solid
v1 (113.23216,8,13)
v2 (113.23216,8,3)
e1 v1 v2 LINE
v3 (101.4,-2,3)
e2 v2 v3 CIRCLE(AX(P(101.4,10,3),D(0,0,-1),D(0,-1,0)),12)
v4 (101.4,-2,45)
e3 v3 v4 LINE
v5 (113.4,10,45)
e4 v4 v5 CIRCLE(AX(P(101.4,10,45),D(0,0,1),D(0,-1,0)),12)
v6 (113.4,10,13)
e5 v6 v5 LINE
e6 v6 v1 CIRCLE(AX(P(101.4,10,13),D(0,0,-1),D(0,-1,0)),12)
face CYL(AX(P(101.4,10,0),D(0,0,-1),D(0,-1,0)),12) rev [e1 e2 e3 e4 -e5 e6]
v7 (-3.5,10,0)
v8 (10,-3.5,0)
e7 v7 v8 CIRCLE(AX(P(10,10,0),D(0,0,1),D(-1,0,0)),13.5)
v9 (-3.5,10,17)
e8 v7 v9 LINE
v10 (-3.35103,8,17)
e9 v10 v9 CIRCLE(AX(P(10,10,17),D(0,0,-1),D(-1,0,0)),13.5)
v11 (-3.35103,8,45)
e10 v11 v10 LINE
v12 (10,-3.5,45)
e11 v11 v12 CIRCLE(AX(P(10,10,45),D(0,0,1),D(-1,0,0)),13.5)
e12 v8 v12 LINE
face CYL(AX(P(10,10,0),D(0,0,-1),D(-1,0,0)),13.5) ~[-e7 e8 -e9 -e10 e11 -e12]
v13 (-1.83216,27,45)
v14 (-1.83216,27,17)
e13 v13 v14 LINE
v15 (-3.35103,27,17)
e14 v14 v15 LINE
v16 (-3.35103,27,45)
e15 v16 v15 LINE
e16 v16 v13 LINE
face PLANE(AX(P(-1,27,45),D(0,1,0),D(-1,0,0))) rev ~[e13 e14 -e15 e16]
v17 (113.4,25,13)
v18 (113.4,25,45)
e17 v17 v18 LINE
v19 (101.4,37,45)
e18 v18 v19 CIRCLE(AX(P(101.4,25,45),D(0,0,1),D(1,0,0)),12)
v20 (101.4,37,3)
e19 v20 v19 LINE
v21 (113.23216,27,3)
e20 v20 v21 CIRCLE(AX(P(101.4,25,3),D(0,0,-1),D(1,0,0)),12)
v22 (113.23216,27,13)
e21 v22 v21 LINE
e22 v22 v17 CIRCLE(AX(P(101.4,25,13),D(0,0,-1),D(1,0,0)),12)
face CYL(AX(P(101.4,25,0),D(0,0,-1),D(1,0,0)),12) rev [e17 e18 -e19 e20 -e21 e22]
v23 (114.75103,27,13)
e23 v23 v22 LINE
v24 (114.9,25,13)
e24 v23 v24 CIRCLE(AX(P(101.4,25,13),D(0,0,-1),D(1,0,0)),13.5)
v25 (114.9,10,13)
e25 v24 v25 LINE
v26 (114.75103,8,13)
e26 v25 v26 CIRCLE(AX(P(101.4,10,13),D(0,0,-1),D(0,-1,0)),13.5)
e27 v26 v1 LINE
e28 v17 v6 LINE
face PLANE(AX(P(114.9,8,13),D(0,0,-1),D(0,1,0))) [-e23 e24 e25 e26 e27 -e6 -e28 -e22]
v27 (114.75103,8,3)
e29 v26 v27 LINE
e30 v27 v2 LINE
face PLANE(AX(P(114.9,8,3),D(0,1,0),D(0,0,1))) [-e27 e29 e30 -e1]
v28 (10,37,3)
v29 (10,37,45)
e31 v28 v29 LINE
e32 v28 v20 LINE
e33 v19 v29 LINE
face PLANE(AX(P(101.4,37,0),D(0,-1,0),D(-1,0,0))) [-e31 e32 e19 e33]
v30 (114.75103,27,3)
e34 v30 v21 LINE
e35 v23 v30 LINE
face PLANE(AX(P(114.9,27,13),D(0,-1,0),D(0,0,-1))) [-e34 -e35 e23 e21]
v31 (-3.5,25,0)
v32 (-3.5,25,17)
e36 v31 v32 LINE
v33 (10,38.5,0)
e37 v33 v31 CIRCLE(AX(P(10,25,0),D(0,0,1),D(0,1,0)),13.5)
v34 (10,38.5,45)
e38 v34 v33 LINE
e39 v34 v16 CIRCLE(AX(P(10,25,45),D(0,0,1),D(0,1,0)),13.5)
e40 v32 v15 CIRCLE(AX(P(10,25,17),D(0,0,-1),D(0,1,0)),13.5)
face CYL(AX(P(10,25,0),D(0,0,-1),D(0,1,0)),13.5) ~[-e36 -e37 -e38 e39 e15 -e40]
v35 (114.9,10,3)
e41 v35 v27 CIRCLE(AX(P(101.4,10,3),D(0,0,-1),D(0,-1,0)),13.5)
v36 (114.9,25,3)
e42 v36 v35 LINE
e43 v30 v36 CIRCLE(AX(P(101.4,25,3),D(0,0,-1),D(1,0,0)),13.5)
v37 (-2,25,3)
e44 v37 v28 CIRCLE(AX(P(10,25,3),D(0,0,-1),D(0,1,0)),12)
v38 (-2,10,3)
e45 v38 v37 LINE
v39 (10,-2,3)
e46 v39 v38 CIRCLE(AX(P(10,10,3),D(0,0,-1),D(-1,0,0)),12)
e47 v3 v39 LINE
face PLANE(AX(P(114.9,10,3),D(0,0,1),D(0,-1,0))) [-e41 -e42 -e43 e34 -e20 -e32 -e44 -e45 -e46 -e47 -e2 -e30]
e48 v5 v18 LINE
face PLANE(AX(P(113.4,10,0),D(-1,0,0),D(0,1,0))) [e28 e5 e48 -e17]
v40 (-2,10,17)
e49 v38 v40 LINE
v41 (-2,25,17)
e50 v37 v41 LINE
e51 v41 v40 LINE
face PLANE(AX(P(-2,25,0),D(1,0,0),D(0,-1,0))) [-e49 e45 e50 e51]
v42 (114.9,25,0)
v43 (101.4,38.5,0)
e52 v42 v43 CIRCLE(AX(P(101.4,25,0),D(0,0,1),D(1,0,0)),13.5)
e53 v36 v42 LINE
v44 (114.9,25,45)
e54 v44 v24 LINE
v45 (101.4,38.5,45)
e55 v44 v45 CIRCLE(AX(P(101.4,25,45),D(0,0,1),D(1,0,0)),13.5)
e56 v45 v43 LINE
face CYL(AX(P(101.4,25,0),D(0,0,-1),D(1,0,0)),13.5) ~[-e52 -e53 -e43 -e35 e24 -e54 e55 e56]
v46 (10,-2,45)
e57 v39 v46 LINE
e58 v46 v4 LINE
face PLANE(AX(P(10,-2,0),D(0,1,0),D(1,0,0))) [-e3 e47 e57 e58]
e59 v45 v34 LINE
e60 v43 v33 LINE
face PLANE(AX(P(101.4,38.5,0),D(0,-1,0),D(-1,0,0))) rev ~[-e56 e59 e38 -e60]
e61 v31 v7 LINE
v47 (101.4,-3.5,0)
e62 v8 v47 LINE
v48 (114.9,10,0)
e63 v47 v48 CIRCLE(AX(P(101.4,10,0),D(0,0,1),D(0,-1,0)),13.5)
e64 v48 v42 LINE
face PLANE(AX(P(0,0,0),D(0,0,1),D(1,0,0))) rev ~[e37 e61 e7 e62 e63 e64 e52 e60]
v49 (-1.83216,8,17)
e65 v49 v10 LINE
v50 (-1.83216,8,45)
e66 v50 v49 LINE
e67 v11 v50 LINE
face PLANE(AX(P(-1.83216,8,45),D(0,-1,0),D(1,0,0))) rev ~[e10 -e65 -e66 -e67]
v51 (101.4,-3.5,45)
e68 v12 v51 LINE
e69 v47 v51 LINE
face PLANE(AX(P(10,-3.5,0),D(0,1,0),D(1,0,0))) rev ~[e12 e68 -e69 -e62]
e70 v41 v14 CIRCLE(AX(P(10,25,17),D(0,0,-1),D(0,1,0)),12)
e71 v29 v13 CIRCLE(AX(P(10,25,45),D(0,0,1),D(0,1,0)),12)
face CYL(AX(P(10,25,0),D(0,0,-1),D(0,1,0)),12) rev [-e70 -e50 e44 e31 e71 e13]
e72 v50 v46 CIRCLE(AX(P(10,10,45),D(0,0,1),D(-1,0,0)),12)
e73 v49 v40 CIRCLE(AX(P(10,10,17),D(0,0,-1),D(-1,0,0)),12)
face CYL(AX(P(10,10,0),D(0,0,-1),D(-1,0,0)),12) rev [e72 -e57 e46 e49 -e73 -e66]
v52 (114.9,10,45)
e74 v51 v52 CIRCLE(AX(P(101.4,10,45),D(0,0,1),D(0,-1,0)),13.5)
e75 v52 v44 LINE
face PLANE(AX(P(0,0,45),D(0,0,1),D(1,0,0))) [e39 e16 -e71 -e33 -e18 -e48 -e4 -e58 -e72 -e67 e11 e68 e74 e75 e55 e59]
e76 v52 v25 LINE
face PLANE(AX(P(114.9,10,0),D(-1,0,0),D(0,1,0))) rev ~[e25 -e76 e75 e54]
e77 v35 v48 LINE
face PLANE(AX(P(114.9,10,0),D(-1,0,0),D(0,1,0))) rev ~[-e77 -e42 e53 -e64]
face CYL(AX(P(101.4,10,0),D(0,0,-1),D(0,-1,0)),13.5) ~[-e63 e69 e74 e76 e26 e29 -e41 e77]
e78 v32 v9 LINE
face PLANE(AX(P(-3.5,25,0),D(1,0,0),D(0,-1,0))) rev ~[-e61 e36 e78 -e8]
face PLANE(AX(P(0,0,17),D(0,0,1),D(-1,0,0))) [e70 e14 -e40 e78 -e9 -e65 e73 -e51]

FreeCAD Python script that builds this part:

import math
import FreeCAD as App
import Part
import Sketcher
from FreeCAD import Vector
Q = App.Units.Quantity

doc = App.newDocument("Part")
body = doc.addObject("PartDesign::Body", "Body")

# Sketch on XY plane
sketch1 = body.newObject("Sketcher::SketchObject", "Sketch")
sketch1.AttachmentSupport = (doc.getObject("XY_Plane"), [""])
sketch1.MapMode = "FlatFace"
sketch1.addGeometry([
    Part.ArcOfCircle(Part.Circle(Vector(10, 25, 0), Vector(0, 0, 1), 13.5), math.radians(90), math.radians(180)),  # 0
    Part.LineSegment(Vector(-3.5, 25, 0), Vector(-3.5, 10, 0)),  # 1
    Part.ArcOfCircle(Part.Circle(Vector(10, 10, 0), Vector(0, 0, 1), 13.5), math.radians(180), math.radians(270)),  # 2
    Part.LineSegment(Vector(10, -3.5, 0), Vector(101.4, -3.5, 0)),  # 3
    Part.ArcOfCircle(Part.Circle(Vector(101.4, 10, 0), Vector(0, 0, 1), 13.5), math.radians(-90), math.radians(0)),  # 4
    Part.LineSegment(Vector(114.9, 10, 0), Vector(114.9, 25, 0)),  # 5
    Part.ArcOfCircle(Part.Circle(Vector(101.4, 25, 0), Vector(0, 0, 1), 13.5), math.radians(0), math.radians(90)),  # 6
    Part.LineSegment(Vector(101.4, 38.5, 0), Vector(10, 38.5, 0)),  # 7
], False)
sketch1.addConstraint([
    Sketcher.Constraint("Tangent", 0, 2, 1, 1),
    Sketcher.Constraint("Tangent", 1, 2, 2, 1),
    Sketcher.Constraint("Tangent", 2, 2, 3, 1),
    Sketcher.Constraint("Tangent", 3, 2, 4, 1),
    Sketcher.Constraint("Tangent", 4, 2, 5, 1),
    Sketcher.Constraint("Tangent", 5, 2, 6, 1),
    Sketcher.Constraint("Tangent", 6, 2, 7, 1),
    Sketcher.Constraint("Tangent", 7, 2, 0, 1),
    Sketcher.Constraint("Vertical", 1),
    Sketcher.Constraint("Horizontal", 3),
    Sketcher.Constraint("Vertical", 5),
    Sketcher.Constraint("Horizontal", 7),
    Sketcher.Constraint("Equal", 0, 2),
    Sketcher.Constraint("Equal", 2, 4),
    Sketcher.Constraint("Equal", 4, 6),
    Sketcher.Constraint("DistanceX", -1, 1, 0, 3, Q("10 mm")),
    Sketcher.Constraint("DistanceY", -1, 1, 2, 3, Q("10 mm")),
    Sketcher.Constraint("DistanceX", 0, 2, -1, 1, Q("3.5 mm")),
    Sketcher.Constraint("DistanceY", 1, 2, 1, 1, Q("15 mm")),
    Sketcher.Constraint("DistanceX", 3, 1, 3, 2, Q("91.4 mm")),
])
pad1 = body.newObject("PartDesign::Pad", "Pad")
pad1.Profile = sketch1
pad1.Length = 3

# Sketch on XY plane
sketch2 = body.newObject("Sketcher::SketchObject", "Sketch001")
sketch2.AttachmentSupport = (doc.getObject("XY_Plane"), [""])
sketch2.MapMode = "FlatFace"
sketch2.addGeometry([
    Part.ArcOfCircle(Part.Circle(Vector(10, 25, 0), Vector(0, 0, 1), 13.5), math.radians(90), math.radians(180)),  # 0
    Part.LineSegment(Vector(-3.5, 25, 0), Vector(-3.5, 10, 0)),  # 1
    Part.ArcOfCircle(Part.Circle(Vector(10, 10, 0), Vector(0, 0, 1), 13.5), math.radians(180), math.radians(270)),  # 2
    Part.LineSegment(Vector(10, -3.5, 0), Vector(101.4, -3.5, 0)),  # 3
    Part.ArcOfCircle(Part.Circle(Vector(101.4, 10, 0), Vector(0, 0, 1), 13.5), math.radians(-90), math.radians(0)),  # 4
    Part.LineSegment(Vector(114.9, 10, 0), Vector(114.9, 25, 0)),  # 5
    Part.ArcOfCircle(Part.Circle(Vector(101.4, 25, 0), Vector(0, 0, 1), 13.5), math.radians(0), math.radians(90)),  # 6
    Part.LineSegment(Vector(101.4, 38.5, 0), Vector(10, 38.5, 0)),  # 7
    Part.LineSegment(Vector(-2, 10, 0), Vector(-2, 25, 0)),  # 8
    Part.ArcOfCircle(Part.Circle(Vector(10, 25, 0), Vector(0, 0, 1), 12), math.radians(90), math.radians(180)),  # 9
    Part.LineSegment(Vector(10, 37, 0), Vector(101.4, 37, 0)),  # 10
    Part.ArcOfCircle(Part.Circle(Vector(101.4, 25, 0), Vector(0, 0, 1), 12), math.radians(0), math.radians(90)),  # 11
    Part.LineSegment(Vector(113.4, 25, 0), Vector(113.4, 10, 0)),  # 12
    Part.ArcOfCircle(Part.Circle(Vector(101.4, 10, 0), Vector(0, 0, 1), 12), math.radians(-90), math.radians(0)),  # 13
    Part.LineSegment(Vector(101.4, -2, 0), Vector(10, -2, 0)),  # 14
    Part.ArcOfCircle(Part.Circle(Vector(10, 10, 0), Vector(0, 0, 1), 12), math.radians(180), math.radians(270)),  # 15
], False)
sketch2.addConstraint([
    Sketcher.Constraint("Tangent", 0, 2, 1, 1),
    Sketcher.Constraint("Tangent", 1, 2, 2, 1),
    Sketcher.Constraint("Tangent", 2, 2, 3, 1),
    Sketcher.Constraint("Tangent", 3, 2, 4, 1),
    Sketcher.Constraint("Tangent", 4, 2, 5, 1),
    Sketcher.Constraint("Tangent", 5, 2, 6, 1),
    Sketcher.Constraint("Tangent", 6, 2, 7, 1),
    Sketcher.Constraint("Tangent", 7, 2, 0, 1),
    Sketcher.Constraint("Tangent", 8, 2, 9, 2),
    Sketcher.Constraint("Tangent", 9, 1, 10, 1),
    Sketcher.Constraint("Tangent", 10, 2, 11, 2),
    Sketcher.Constraint("Tangent", 11, 1, 12, 1),
    Sketcher.Constraint("Tangent", 12, 2, 13, 2),
    Sketcher.Constraint("Tangent", 13, 1, 14, 1),
    Sketcher.Constraint("Tangent", 14, 2, 15, 2),
    Sketcher.Constraint("Tangent", 15, 1, 8, 1),
    Sketcher.Constraint("Vertical", 1),
    Sketcher.Constraint("Horizontal", 3),
    Sketcher.Constraint("Vertical", 5),
    Sketcher.Constraint("Horizontal", 7),
    Sketcher.Constraint("Vertical", 8),
    Sketcher.Constraint("Horizontal", 10),
    Sketcher.Constraint("Vertical", 12),
    Sketcher.Constraint("Horizontal", 14),
    Sketcher.Constraint("Coincident", 9, 3, 0, 3),
    Sketcher.Constraint("Coincident", 11, 3, 6, 3),
    Sketcher.Constraint("Coincident", 13, 3, 4, 3),
    Sketcher.Constraint("Equal", 0, 2),
    Sketcher.Constraint("Equal", 2, 4),
    Sketcher.Constraint("Equal", 4, 6),
    Sketcher.Constraint("Equal", 13, 15),
    Sketcher.Constraint("DistanceX", -1, 1, 0, 3, Q("10 mm")),
    Sketcher.Constraint("DistanceY", -1, 1, 2, 3, Q("10 mm")),
    Sketcher.Constraint("DistanceX", 8, 2, -1, 1, Q("2 mm")),
    Sketcher.Constraint("DistanceX", 0, 2, -1, 1, Q("3.5 mm")),
    Sketcher.Constraint("DistanceY", 1, 2, 1, 1, Q("15 mm")),
    Sketcher.Constraint("DistanceX", 3, 1, 3, 2, Q("91.4 mm")),
])
pad2 = body.newObject("PartDesign::Pad", "Pad001")
pad2.Profile = sketch2
pad2.Length = 45

# Sketch on XY plane
sketch3 = body.newObject("Sketcher::SketchObject", "Sketch002")
sketch3.AttachmentSupport = (doc.getObject("XY_Plane"), [""])
sketch3.MapMode = "FlatFace"
sketch3.AttachmentOffset = App.Placement(Vector(0, 0, 45), App.Rotation())
sketch3.addGeometry([
    Part.LineSegment(Vector(-1, 27, 0), Vector(-11, 27, 0)),
    Part.LineSegment(Vector(-11, 27, 0), Vector(-11, 8, 0)),
    Part.LineSegment(Vector(-11, 8, 0), Vector(-1, 8, 0)),
    Part.LineSegment(Vector(-1, 8, 0), Vector(-1, 27, 0)),
], False)
sketch3.addConstraint([
    Sketcher.Constraint("Coincident", 0, 2, 1, 1),
    Sketcher.Constraint("Coincident", 1, 2, 2, 1),
    Sketcher.Constraint("Coincident", 2, 2, 3, 1),
    Sketcher.Constraint("Coincident", 3, 2, 0, 1),
    Sketcher.Constraint("Horizontal", 0),
    Sketcher.Constraint("Vertical", 1),
    Sketcher.Constraint("Horizontal", 2),
    Sketcher.Constraint("Vertical", 3),
    Sketcher.Constraint("DistanceY", 1, 2, 1, 1, Q("19 mm")),
    Sketcher.Constraint("DistanceX", 2, 2, -1, 1, Q("1 mm")),
    Sketcher.Constraint("DistanceX", 0, 2, 0, 1, Q("10 mm")),
    Sketcher.Constraint("DistanceY", -1, 1, 0, 2, Q("27 mm")),
])
pocket1 = body.newObject("PartDesign::Pocket", "Pocket")
pocket1.Profile = sketch3
pocket1.Length = 28

# Sketch on YZ plane
sketch4 = body.newObject("Sketcher::SketchObject", "Sketch003")
sketch4.AttachmentSupport = (doc.getObject("YZ_Plane"), [""])
sketch4.MapMode = "FlatFace"
sketch4.AttachmentOffset = App.Placement(Vector(0, 0, 114.9), App.Rotation())
sketch4.addGeometry([
    Part.LineSegment(Vector(8, 3, 0), Vector(27, 3, 0)),
    Part.LineSegment(Vector(27, 3, 0), Vector(27, 13, 0)),
    Part.LineSegment(Vector(27, 13, 0), Vector(8, 13, 0)),
    Part.LineSegment(Vector(8, 13, 0), Vector(8, 3, 0)),
], False)
sketch4.addConstraint([
    Sketcher.Constraint("Coincident", 0, 2, 1, 1),
    Sketcher.Constraint("Coincident", 1, 2, 2, 1),
    Sketcher.Constraint("Coincident", 2, 2, 3, 1),
    Sketcher.Constraint("Coincident", 3, 2, 0, 1),
    Sketcher.Constraint("Horizontal", 0),
    Sketcher.Constraint("Vertical", 1),
    Sketcher.Constraint("Horizontal", 2),
    Sketcher.Constraint("Vertical", 3),
    Sketcher.Constraint("DistanceX", 0, 1, 0, 2, Q("19 mm")),
    Sketcher.Constraint("DistanceY", 1, 1, 1, 2, Q("10 mm")),
    Sketcher.Constraint("DistanceY", -1, 1, 0, 2, Q("3 mm")),
    Sketcher.Constraint("DistanceX", -1, 1, 0, 2, Q("27 mm")),
])
pocket2 = body.newObject("PartDesign::Pocket", "Pocket001")
pocket2.Profile = sketch4
pocket2.Length = 10

doc.recompute()
